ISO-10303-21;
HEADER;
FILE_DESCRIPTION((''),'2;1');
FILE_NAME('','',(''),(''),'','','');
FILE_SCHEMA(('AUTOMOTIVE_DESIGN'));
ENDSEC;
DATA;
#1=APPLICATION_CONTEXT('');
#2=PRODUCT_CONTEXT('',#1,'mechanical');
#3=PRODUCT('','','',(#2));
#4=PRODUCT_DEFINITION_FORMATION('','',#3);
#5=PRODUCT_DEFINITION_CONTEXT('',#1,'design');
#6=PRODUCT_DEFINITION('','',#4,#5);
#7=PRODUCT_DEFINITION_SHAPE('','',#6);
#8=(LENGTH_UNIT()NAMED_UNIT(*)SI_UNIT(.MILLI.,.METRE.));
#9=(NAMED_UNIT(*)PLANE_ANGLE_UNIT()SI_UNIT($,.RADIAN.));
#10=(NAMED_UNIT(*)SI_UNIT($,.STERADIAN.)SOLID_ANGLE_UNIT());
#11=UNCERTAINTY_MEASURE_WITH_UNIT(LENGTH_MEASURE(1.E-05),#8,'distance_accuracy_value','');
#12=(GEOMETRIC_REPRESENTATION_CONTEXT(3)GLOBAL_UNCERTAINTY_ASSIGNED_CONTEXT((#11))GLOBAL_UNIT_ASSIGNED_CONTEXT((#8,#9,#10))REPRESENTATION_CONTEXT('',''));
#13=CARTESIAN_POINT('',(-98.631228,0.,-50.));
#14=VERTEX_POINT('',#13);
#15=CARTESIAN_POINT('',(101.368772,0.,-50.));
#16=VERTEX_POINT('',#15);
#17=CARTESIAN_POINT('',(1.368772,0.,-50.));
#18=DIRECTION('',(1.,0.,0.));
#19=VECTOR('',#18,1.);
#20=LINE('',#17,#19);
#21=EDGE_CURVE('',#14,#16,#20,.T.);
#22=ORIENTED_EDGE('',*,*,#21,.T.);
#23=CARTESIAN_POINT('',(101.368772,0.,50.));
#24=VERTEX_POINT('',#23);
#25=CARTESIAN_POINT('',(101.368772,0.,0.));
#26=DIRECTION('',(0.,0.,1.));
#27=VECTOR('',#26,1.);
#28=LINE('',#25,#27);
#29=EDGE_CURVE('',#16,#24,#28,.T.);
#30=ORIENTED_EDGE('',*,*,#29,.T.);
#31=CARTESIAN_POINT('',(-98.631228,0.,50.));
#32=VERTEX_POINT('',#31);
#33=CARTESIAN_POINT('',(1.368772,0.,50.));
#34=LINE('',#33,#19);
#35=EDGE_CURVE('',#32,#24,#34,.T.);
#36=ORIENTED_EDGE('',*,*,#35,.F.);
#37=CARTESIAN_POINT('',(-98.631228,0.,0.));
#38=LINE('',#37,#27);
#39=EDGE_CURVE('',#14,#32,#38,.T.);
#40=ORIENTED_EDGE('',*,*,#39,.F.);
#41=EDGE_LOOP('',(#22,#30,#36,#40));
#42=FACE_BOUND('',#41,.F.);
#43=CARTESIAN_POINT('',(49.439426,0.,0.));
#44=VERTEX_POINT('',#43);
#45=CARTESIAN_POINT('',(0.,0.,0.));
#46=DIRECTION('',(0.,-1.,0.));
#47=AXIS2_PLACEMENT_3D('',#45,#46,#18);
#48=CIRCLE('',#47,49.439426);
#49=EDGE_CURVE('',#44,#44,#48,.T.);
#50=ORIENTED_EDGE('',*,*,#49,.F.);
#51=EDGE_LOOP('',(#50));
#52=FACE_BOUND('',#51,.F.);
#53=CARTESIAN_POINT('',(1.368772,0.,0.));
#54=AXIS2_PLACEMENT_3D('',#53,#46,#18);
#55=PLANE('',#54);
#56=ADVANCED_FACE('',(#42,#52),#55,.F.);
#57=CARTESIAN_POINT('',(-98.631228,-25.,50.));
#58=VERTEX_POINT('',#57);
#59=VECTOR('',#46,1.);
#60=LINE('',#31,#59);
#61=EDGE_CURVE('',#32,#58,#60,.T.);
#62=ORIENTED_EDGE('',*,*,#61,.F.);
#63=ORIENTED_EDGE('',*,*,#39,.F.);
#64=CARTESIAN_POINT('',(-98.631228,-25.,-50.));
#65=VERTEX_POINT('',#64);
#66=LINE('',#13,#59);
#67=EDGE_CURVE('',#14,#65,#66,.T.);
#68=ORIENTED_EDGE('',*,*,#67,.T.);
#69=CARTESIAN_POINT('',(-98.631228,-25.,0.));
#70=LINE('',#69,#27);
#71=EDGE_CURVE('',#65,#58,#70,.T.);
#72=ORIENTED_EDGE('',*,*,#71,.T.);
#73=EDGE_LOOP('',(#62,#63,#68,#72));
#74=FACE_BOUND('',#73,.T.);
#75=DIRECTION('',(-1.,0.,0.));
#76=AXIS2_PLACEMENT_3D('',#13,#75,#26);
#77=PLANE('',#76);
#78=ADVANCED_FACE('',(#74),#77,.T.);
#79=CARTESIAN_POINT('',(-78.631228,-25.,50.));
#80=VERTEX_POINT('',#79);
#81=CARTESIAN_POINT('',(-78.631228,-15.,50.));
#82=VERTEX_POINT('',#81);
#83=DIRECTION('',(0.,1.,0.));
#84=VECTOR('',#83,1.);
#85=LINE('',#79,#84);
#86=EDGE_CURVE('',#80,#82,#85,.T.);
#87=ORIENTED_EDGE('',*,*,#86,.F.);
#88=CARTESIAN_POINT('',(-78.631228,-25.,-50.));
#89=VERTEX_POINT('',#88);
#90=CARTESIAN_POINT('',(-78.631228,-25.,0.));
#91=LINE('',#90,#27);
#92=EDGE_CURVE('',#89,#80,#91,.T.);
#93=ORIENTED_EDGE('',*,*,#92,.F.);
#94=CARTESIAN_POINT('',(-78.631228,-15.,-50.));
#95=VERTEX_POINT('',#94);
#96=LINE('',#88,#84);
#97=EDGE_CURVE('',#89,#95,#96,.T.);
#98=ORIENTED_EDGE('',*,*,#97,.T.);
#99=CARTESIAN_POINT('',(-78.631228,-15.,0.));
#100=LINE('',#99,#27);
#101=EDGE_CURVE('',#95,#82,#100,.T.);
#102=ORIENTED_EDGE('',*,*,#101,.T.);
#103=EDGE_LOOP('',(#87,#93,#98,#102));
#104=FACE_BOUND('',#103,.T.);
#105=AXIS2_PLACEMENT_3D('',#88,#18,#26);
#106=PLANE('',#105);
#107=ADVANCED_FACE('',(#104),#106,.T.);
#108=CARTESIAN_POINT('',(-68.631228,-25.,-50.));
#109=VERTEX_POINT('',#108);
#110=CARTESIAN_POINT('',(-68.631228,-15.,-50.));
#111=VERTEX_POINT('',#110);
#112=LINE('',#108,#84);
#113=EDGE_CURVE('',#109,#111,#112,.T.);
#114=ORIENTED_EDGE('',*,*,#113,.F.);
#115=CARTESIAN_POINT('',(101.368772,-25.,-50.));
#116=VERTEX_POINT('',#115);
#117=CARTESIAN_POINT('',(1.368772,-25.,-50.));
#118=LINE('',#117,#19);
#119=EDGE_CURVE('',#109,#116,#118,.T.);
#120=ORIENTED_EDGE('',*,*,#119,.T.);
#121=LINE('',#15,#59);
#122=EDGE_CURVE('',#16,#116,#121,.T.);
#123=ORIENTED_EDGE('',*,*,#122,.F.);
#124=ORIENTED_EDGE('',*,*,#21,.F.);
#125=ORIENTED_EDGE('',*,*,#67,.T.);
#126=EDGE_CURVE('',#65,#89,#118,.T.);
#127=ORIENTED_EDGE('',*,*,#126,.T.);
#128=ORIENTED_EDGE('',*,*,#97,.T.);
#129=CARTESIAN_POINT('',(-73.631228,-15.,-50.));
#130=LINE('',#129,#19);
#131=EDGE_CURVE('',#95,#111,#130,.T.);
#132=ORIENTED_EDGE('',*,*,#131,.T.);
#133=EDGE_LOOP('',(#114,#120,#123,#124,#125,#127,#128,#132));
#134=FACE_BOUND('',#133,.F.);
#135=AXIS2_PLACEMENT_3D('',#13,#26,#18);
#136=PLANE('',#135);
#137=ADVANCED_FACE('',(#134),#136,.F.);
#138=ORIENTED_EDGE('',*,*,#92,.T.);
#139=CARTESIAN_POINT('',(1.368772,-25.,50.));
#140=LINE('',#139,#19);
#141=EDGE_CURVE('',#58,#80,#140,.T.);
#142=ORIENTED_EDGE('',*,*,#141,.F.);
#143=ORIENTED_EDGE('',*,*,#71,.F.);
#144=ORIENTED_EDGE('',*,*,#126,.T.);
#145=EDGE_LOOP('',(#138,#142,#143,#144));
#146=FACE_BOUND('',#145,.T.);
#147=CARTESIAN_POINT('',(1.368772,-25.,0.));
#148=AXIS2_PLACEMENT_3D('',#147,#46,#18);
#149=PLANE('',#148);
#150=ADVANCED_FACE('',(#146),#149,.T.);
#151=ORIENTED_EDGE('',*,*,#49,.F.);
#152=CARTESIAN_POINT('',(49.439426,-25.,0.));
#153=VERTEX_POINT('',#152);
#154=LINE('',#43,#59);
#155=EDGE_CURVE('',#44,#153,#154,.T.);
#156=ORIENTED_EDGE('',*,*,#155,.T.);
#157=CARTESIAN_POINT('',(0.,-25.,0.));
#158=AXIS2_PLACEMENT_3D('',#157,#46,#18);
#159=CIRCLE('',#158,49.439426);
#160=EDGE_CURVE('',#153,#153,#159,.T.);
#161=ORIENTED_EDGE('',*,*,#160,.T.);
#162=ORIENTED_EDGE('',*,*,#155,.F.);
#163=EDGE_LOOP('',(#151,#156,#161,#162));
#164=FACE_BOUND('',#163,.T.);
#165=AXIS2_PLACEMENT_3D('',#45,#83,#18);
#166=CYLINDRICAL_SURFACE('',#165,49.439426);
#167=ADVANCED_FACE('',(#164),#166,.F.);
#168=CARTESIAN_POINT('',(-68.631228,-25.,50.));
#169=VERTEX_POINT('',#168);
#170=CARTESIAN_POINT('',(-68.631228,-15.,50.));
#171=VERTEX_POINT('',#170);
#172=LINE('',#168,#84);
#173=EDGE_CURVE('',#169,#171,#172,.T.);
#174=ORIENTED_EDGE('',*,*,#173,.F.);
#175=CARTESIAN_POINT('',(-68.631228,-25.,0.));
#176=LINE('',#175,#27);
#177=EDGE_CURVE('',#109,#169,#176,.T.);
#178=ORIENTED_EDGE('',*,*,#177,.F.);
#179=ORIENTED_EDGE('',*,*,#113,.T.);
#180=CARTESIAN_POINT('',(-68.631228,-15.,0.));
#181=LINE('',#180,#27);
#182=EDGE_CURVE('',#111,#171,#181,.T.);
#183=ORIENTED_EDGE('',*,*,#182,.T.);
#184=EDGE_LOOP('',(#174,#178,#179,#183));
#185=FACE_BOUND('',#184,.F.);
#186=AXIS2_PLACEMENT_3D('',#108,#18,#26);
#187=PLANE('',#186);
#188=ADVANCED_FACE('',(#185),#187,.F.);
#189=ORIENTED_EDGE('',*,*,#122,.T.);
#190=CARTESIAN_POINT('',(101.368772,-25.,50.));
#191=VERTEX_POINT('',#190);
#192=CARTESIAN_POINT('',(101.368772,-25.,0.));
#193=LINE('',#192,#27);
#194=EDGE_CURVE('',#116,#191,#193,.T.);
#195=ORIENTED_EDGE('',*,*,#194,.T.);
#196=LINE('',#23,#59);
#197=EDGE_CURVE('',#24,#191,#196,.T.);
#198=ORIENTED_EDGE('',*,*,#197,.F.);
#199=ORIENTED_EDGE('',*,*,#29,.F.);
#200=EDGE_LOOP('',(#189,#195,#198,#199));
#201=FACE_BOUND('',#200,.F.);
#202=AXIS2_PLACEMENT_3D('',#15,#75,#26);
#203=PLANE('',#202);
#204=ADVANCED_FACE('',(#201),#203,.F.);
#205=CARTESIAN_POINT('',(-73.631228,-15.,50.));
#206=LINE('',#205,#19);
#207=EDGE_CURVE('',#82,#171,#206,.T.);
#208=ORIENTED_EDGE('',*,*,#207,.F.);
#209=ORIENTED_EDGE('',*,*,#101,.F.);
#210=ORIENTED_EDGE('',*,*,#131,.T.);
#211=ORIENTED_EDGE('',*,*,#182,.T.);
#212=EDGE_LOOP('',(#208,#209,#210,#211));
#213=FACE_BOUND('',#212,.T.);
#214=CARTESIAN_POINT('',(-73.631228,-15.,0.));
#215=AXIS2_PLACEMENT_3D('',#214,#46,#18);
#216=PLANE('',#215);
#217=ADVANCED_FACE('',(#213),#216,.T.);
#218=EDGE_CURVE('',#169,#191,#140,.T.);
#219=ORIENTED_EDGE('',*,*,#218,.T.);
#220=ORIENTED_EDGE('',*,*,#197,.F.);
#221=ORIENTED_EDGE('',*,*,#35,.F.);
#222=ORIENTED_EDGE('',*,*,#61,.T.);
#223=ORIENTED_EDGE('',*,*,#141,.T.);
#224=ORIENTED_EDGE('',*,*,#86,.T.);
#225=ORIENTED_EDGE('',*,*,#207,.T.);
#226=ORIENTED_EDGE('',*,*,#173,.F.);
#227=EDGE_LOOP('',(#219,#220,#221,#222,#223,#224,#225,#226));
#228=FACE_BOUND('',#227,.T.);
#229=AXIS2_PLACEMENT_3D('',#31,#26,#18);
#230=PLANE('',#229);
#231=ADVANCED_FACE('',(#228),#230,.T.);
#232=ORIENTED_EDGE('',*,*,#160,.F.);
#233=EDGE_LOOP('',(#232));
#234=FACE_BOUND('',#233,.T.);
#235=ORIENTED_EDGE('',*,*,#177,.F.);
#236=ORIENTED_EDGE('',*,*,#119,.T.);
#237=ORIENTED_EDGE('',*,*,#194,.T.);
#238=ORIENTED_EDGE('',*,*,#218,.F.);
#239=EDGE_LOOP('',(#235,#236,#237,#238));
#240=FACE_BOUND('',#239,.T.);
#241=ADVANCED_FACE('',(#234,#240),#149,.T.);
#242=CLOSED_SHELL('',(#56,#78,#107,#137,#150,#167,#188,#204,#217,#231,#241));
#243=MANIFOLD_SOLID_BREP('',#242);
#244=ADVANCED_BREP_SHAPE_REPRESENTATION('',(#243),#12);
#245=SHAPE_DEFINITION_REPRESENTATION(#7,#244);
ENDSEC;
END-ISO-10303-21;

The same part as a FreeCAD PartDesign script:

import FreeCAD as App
import Part
import Sketcher
from FreeCAD import Vector
Q = App.Units.Quantity


def add_polygon(sketch, points):
    """Adds a closed chain of lines whose ends are joined by coincident constraints."""
    first, n = sketch.GeometryCount, len(points)
    for a, b in zip(points, points[1:] + points[:1]):
        sketch.addGeometry(Part.LineSegment(App.Vector(*a, 0), App.Vector(*b, 0)), False)
    for i in range(n):
        sketch.addConstraint(Sketcher.Constraint("Coincident", first + i, 2, first + (i + 1) % n, 1))

doc = App.newDocument("Part")
params = doc.addObject("Spreadsheet::Sheet", "Params")
for row, (alias, value) in enumerate([
    ("sketch1_width", "200 mm"),
    ("sketch1_height", "100 mm"),
    ("pad1_length", "25 mm"),
    ("sketch2_width", "10 mm"),
    ("sketch2_height", "100 mm"),
    ("pocket1_length", "10 mm"),
], start=1):
    params.set(f"A{row}", alias)
    params.set(f"B{row}", "=" + value)
    params.setAlias(f"B{row}", alias)

body = doc.addObject("PartDesign::Body", "Body")

# Sketch on XZ plane
sketch1 = body.newObject("Sketcher::SketchObject", "Sketch")
sketch1.AttachmentSupport = (doc.getObject("XZ_Plane"), [""])
sketch1.MapMode = "FlatFace"
add_polygon(sketch1, [(-98.631228, 50), (-98.631228, -50), (101.368772, -50), (101.368772, 50)])  # lines 0-3
sketch1.addGeometry(Part.Circle(Vector(0, 0, 0), Vector(0, 0, 1), 49.439426), False)  # 4
sketch1.addConstraint(Sketcher.Constraint("Vertical", 0))
sketch1.addConstraint(Sketcher.Constraint("Horizontal", 1))
sketch1.addConstraint(Sketcher.Constraint("Vertical", 2))
sketch1.addConstraint(Sketcher.Constraint("Horizontal", 3))
sketch1.addConstraint(Sketcher.Constraint("Coincident", 4, 3, -1, 1))
sketch1.addConstraint(Sketcher.Constraint("DistanceX", 1, 1, 1, 2, Q("200 mm")))
sketch1.addConstraint(Sketcher.Constraint("DistanceY", 0, 2, 0, 1, Q("100 mm")))
sketch1.addConstraint(Sketcher.Constraint("DistanceY", 0, 2, -1, 1, Q("50 mm")))
sketch1.addConstraint(Sketcher.Constraint("Diameter", 4, Q("98.878852 mm")))
sketch1.addConstraint(Sketcher.Constraint("DistanceX", 0, 2, -1, 1, Q("98.631228 mm")))
sketch1.setExpression("Constraints[9]", "Params.sketch1_width")
sketch1.setExpression("Constraints[10]", "Params.sketch1_height")
pad1 = body.newObject("PartDesign::Pad", "Pad")
pad1.Profile = sketch1
pad1.setExpression("Length", "Params.pad1_length")

# Sketch on XZ plane
sketch2 = body.newObject("Sketcher::SketchObject", "Sketch001")
sketch2.AttachmentSupport = (doc.getObject("XZ_Plane"), [""])
sketch2.MapMode = "FlatFace"
sketch2.AttachmentOffset = App.Placement(Vector(0, 0, 25), App.Rotation())
add_polygon(sketch2, [(-78.631228, 50), (-78.631228, -50), (-68.631228, -50), (-68.631228, 50)])  # lines 0-3
sketch2.addConstraint(Sketcher.Constraint("Vertical", 0))
sketch2.addConstraint(Sketcher.Constraint("Horizontal", 1))
sketch2.addConstraint(Sketcher.Constraint("Vertical", 2))
sketch2.addConstraint(Sketcher.Constraint("Horizontal", 3))
sketch2.addConstraint(Sketcher.Constraint("DistanceX", 1, 1, 1, 2, Q("10 mm")))
sketch2.addConstraint(Sketcher.Constraint("DistanceY", 0, 2, 0, 1, Q("100 mm")))
sketch2.addConstraint(Sketcher.Constraint("DistanceY", 0, 2, -1, 1, Q("50 mm")))
sketch2.addConstraint(Sketcher.Constraint("DistanceX", 0, 2, -1, 1, Q("78.631228 mm")))
sketch2.setExpression("Constraints[8]", "Params.sketch2_width")
sketch2.setExpression("Constraints[9]", "Params.sketch2_height")
pocket1 = body.newObject("PartDesign::Pocket", "Pocket")
pocket1.Profile = sketch2
pocket1.setExpression("Length", "Params.pocket1_length")

doc.recompute()
